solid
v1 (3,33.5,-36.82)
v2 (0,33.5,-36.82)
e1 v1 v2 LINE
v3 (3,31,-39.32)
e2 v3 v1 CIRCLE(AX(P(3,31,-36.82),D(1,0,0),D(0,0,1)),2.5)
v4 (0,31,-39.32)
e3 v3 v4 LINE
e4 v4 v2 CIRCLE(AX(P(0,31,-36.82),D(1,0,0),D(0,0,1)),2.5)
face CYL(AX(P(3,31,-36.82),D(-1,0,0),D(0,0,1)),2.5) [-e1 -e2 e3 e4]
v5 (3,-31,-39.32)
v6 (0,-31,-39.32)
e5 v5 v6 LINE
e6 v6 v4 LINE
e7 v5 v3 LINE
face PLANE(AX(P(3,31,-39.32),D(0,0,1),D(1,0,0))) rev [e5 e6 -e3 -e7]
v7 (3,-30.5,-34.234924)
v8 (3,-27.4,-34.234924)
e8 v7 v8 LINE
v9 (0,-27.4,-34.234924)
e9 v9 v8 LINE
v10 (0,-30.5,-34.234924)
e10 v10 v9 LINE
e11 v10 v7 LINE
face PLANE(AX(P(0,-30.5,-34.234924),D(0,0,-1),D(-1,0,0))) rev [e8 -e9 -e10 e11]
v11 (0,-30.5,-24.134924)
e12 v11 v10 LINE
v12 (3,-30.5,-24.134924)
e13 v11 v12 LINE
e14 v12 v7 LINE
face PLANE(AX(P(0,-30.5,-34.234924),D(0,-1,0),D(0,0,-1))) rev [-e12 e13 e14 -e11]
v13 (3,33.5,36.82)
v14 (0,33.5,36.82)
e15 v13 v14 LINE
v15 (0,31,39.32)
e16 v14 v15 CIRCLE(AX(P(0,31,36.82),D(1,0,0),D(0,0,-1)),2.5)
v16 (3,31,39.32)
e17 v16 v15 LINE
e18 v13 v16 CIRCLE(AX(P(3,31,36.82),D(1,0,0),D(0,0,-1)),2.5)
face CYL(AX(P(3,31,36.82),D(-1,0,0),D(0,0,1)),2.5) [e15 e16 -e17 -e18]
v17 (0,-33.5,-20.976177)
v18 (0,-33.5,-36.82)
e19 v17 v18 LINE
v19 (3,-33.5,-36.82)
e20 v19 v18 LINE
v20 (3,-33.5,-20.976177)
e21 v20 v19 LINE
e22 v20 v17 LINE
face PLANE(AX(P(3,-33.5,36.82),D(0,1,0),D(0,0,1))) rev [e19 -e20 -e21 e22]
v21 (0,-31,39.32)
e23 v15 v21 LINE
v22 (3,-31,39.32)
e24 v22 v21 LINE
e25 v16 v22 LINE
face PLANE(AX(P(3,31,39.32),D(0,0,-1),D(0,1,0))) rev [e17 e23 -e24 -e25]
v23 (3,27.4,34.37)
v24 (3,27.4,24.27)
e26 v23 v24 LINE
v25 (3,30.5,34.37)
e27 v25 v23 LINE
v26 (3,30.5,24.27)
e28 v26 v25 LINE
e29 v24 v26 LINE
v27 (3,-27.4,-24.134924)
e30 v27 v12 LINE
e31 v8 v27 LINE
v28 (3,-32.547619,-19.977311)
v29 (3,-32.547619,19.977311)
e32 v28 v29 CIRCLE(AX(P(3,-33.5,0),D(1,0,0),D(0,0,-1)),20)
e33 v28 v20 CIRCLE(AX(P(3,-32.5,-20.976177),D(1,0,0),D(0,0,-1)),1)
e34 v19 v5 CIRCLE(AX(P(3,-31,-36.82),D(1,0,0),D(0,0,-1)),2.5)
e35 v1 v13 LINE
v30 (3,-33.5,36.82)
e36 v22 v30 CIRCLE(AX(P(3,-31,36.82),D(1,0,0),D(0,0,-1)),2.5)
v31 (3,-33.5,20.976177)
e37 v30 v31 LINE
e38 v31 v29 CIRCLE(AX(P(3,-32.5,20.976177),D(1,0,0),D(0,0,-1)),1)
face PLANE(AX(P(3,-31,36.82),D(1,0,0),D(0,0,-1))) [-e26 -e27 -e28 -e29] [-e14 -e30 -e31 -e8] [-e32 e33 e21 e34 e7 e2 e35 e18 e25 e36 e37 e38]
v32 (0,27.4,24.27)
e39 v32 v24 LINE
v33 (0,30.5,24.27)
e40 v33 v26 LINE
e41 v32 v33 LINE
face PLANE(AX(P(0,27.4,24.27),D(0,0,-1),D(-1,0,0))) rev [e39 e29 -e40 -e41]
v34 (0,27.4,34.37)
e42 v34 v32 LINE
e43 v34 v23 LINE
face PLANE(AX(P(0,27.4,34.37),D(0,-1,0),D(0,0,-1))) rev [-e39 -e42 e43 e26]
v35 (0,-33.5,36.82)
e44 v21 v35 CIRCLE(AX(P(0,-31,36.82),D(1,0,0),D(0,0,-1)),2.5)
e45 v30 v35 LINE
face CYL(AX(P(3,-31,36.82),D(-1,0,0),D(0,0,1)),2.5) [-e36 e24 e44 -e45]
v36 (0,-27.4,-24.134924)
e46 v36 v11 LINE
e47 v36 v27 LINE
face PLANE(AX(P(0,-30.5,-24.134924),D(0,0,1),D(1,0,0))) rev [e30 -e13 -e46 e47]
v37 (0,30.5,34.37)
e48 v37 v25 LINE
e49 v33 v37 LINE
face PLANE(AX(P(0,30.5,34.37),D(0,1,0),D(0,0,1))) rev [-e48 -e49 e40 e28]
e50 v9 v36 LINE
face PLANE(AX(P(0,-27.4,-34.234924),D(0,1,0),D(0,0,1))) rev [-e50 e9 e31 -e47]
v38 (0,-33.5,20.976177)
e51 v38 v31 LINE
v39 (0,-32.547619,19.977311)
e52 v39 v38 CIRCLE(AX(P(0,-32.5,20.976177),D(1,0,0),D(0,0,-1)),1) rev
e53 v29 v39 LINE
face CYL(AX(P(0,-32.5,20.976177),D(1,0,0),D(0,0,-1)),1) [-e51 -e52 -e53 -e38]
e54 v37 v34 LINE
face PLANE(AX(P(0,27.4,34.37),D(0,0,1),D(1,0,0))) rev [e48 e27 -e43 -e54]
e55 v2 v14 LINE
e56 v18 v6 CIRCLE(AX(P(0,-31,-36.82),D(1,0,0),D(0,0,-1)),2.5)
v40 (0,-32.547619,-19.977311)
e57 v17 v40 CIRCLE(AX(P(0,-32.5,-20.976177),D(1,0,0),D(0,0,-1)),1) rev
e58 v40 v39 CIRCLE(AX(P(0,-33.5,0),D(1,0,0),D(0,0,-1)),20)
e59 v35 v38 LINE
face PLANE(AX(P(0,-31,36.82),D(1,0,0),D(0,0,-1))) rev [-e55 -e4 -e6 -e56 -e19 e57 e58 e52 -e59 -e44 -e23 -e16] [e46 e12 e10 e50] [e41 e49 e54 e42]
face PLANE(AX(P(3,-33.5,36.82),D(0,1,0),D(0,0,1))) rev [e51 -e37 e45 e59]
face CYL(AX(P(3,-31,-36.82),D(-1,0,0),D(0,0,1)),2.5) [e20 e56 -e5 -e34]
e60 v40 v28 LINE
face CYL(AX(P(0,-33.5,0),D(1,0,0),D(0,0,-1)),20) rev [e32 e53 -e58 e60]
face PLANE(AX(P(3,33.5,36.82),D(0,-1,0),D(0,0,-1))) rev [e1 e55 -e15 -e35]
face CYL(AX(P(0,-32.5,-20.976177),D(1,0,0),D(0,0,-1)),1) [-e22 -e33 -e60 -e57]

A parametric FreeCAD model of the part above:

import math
import FreeCAD as App
import Part
import Sketcher
from FreeCAD import Vector


def edges_at(feature, points):
    """Names of the edges that pass closest to the given points."""
    edges = feature.Shape.Edges
    near = lambda p: min(range(len(edges)), key=lambda i: edges[i].distToShape(Part.Vertex(*p))[0])
    return sorted({f"Edge{near(p) + 1}" for p in points})


def add_polygon(sketch, points):
    """Adds a closed chain of lines whose ends are joined by coincident constraints."""
    first, n = sketch.GeometryCount, len(points)
    for a, b in zip(points, points[1:] + points[:1]):
        sketch.addGeometry(Part.LineSegment(App.Vector(*a, 0), App.Vector(*b, 0)), False)
    for i in range(n):
        sketch.addConstraint(Sketcher.Constraint("Coincident", first + i, 2, first + (i + 1) % n, 1))

doc = App.newDocument("Part")
body = doc.addObject("PartDesign::Body", "Body")

sketch1 = body.newObject("Sketcher::SketchObject", "Sketch")
sketch1.AttachmentSupport = (doc.getObject("YZ_Plane"), [""])
sketch1.MapMode = "FlatFace"
sketch1.addGeometry([
    Part.LineSegment(Vector(33.5, -36.8, 0), Vector(33.5, 36.8, 0)),
    Part.ArcOfCircle(Part.Circle(Vector(31, 36.8, 0), Vector(0, 0, 1), 2.5), math.radians(0), math.radians(90)),
    Part.LineSegment(Vector(31, 39.3, 0), Vector(-31, 39.3, 0)),
    Part.ArcOfCircle(Part.Circle(Vector(-31, 36.8, 0), Vector(0, 0, 1), 2.5), math.radians(90), math.radians(180)),
    Part.LineSegment(Vector(-33.5, 36.8, 0), Vector(-33.5, -36.8, 0)),
    Part.ArcOfCircle(Part.Circle(Vector(-31, -36.8, 0), Vector(0, 0, 1), 2.5), math.radians(180), math.radians(270)),
    Part.LineSegment(Vector(-31, -39.3, 0), Vector(31, -39.3, 0)),
    Part.ArcOfCircle(Part.Circle(Vector(31, -36.8, 0), Vector(0, 0, 1), 2.5), math.radians(-90), math.radians(0)),
], False)
sketch1.addConstraint([
    Sketcher.Constraint("Tangent", 0, 2, 1, 1),
    Sketcher.Constraint("Tangent", 1, 2, 2, 1),
    Sketcher.Constraint("Tangent", 2, 2, 3, 1),
    Sketcher.Constraint("Tangent", 3, 2, 4, 1),
    Sketcher.Constraint("Tangent", 4, 2, 5, 1),
    Sketcher.Constraint("Tangent", 5, 2, 6, 1),
    Sketcher.Constraint("Tangent", 6, 2, 7, 1),
    Sketcher.Constraint("Tangent", 7, 2, 0, 1),
    Sketcher.Constraint("Vertical", 0),
    Sketcher.Constraint("Horizontal", 2),
    Sketcher.Constraint("Vertical", 4),
    Sketcher.Constraint("Horizontal", 6),
    Sketcher.Constraint("Equal", 1, 3),
    Sketcher.Constraint("Equal", 3, 5),
    Sketcher.Constraint("Equal", 5, 7),
    Sketcher.Constraint("Symmetric", 1, 3, 5, 3, -1, 1),
    Sketcher.Constraint("Radius", 1, 2.5),
    Sketcher.Constraint("DistanceX", 2, 2, 2, 1, 62.0),
    Sketcher.Constraint("DistanceY", 0, 1, 0, 2, 73.64),
])
pad1 = body.newObject("PartDesign::Pad", "Pad")
pad1.Profile = sketch1
pad1.Length = 3

sketch2 = body.newObject("Sketcher::SketchObject", "Sketch001")
sketch2.AttachmentSupport = (doc.getObject("YZ_Plane"), [""])
sketch2.MapMode = "FlatFace"
sketch2.AttachmentOffset = App.Placement(Vector(0, 0, 3), App.Rotation())
sketch2.addGeometry(Part.Circle(Vector(-33.5, 0, 0), Vector(0, 0, 1), 20), False)
add_polygon(sketch2, [(-27.4, -24.1), (-30.5, -24.1), (-30.5, -34.2), (-27.4, -34.2)])
add_polygon(sketch2, [(30.5, 34.4), (27.4, 34.4), (27.4, 24.3), (30.5, 24.3)])
sketch2.addConstraint([
    Sketcher.Constraint("Horizontal", 1),
    Sketcher.Constraint("Vertical", 2),
    Sketcher.Constraint("Horizontal", 3),
    Sketcher.Constraint("Vertical", 4),
    Sketcher.Constraint("Horizontal", 5),
    Sketcher.Constraint("Vertical", 6),
    Sketcher.Constraint("Horizontal", 7),
    Sketcher.Constraint("Vertical", 8),
    Sketcher.Constraint("PointOnObject", 0, 3, -1),
    Sketcher.Constraint("Equal", 3, 5),
    Sketcher.Constraint("Equal", 4, 6),
    Sketcher.Constraint("Diameter", 0, 40.0),
    Sketcher.Constraint("DistanceX", 1, 2, 1, 1, 3.1),
    Sketcher.Constraint("DistanceY", 2, 2, 2, 1, 10.1),
    Sketcher.Constraint("DistanceX", 0, 3, 1, 2, 3.0),
    Sketcher.Constraint("DistanceX", 0, 3, 7, 2, 64.0),
    Sketcher.Constraint("DistanceX", 0, 3, -1, 1, 33.5),
    Sketcher.Constraint("DistanceY", -1, 1, 5, 2, 34.37),
    Sketcher.Constraint("DistanceY", 1, 2, -1, 1, 24.134924),
])
pocket1 = body.newObject("PartDesign::Pocket", "Pocket")
pocket1.Profile = sketch2
pocket1.Length = 6
pocket1.Midplane = True
doc.recompute()

fillet = body.newObject("PartDesign::Fillet", "Fillet")
fillet.Base = (pocket1, edges_at(pocket1, [(1.5, -33.5, 20), (1.5, -33.5, -20)]))
fillet.Radius = 1

doc.recompute()
